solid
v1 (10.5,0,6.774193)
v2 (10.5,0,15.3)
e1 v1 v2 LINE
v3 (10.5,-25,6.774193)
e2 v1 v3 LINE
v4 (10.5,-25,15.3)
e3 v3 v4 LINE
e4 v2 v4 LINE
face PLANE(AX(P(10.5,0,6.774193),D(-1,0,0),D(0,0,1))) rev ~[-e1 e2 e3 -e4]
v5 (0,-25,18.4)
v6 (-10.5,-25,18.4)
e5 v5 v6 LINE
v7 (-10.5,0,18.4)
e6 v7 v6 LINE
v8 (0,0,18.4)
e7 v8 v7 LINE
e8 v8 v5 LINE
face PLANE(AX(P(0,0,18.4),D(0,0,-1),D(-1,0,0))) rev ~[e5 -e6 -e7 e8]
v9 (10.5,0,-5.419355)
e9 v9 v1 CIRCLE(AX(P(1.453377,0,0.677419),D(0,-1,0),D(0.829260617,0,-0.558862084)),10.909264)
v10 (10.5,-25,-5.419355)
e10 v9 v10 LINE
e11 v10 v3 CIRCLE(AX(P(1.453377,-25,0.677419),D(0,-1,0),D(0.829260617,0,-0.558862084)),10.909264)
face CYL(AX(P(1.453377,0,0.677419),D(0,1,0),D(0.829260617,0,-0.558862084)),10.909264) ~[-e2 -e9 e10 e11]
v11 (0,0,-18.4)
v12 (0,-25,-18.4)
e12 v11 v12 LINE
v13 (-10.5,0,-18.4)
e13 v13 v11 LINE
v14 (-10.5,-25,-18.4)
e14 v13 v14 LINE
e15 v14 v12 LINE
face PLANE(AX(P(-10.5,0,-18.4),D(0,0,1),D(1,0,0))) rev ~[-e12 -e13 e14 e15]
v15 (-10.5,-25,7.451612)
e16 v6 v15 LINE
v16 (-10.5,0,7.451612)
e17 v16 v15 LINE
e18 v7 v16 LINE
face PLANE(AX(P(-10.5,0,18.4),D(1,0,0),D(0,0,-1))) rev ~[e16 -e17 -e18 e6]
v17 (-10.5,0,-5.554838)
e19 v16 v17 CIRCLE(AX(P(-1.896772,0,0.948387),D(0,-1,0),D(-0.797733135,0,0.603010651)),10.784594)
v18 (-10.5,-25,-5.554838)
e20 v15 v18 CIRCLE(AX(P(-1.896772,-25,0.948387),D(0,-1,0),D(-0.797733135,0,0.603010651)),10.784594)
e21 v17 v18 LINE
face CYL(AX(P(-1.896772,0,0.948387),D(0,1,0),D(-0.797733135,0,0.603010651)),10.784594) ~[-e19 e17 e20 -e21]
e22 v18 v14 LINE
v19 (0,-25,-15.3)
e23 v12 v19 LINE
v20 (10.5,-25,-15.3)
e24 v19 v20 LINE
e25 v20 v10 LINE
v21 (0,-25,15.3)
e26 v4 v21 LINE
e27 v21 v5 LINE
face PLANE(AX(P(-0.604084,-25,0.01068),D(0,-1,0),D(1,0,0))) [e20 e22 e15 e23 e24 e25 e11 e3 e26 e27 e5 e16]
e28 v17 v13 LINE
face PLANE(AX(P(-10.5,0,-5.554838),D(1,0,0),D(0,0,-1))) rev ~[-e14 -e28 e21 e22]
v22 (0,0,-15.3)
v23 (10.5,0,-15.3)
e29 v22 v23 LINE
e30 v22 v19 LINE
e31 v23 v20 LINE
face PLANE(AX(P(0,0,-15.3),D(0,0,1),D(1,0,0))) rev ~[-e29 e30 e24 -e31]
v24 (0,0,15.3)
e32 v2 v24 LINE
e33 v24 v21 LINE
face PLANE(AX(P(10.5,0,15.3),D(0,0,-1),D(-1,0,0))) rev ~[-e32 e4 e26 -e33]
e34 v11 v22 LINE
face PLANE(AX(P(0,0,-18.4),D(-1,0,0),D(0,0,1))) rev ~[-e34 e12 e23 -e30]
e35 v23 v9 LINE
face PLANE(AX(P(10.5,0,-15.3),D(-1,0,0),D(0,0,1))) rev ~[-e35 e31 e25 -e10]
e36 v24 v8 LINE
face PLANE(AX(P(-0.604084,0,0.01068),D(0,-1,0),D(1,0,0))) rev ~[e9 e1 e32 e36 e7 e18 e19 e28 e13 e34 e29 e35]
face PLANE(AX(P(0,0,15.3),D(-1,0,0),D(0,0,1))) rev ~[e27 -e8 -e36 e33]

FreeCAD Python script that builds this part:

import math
import FreeCAD as App
import Part
import Sketcher
from FreeCAD import Vector

doc = App.newDocument("Part")
body = doc.addObject("PartDesign::Body", "Body")

# Sketch on XZ plane
sketch1 = body.newObject("Sketcher::SketchObject", "Sketch")
sketch1.AttachmentSupport = (doc.getObject("XZ_Plane"), [""])
sketch1.MapMode = "FlatFace"
sketch1.addGeometry(Part.LineSegment(Vector(-10.5, -5.6, 0), Vector(-10.5, -18.4, 0)), False)
sketch1.addGeometry(Part.LineSegment(Vector(-10.5, -18.4, 0), Vector(0, -18.4, 0)), False)
sketch1.addGeometry(Part.LineSegment(Vector(0, -18.4, 0), Vector(0, -15.3, 0)), False)
sketch1.addGeometry(Part.LineSegment(Vector(0, -15.3, 0), Vector(10.5, -15.3, 0)), False)
sketch1.addGeometry(Part.LineSegment(Vector(10.5, -15.3, 0), Vector(10.5, -5.4, 0)), False)
sketch1.addGeometry(Part.ArcOfCircle(Part.Circle(Vector(1.5, 0.7, 0), Vector(0, 0, 1), 10.9), math.radians(-34), math.radians(34)), False)
sketch1.addGeometry(Part.LineSegment(Vector(10.5, 6.8, 0), Vector(10.5, 15.3, 0)), False)
sketch1.addGeometry(Part.LineSegment(Vector(10.5, 15.3, 0), Vector(0, 15.3, 0)), False)
sketch1.addGeometry(Part.LineSegment(Vector(0, 15.3, 0), Vector(0, 18.4, 0)), False)
sketch1.addGeometry(Part.LineSegment(Vector(0, 18.4, 0), Vector(-10.5, 18.4, 0)), False)
sketch1.addGeometry(Part.LineSegment(Vector(-10.5, 18.4, 0), Vector(-10.5, 7.5, 0)), False)
sketch1.addGeometry(Part.ArcOfCircle(Part.Circle(Vector(-1.9, 0.9, 0), Vector(0, 0, 1), 10.8), math.radians(143), math.radians(217)), False)
sketch1.addConstraint(Sketcher.Constraint("Coincident", 0, 2, 1, 1))
sketch1.addConstraint(Sketcher.Constraint("Coincident", 1, 2, 2, 1))
sketch1.addConstraint(Sketcher.Constraint("Coincident", 2, 2, 3, 1))
sketch1.addConstraint(Sketcher.Constraint("Coincident", 3, 2, 4, 1))
sketch1.addConstraint(Sketcher.Constraint("Coincident", 4, 2, 5, 1))
sketch1.addConstraint(Sketcher.Constraint("Coincident", 5, 2, 6, 1))
sketch1.addConstraint(Sketcher.Constraint("Coincident", 6, 2, 7, 1))
sketch1.addConstraint(Sketcher.Constraint("Coincident", 7, 2, 8, 1))
sketch1.addConstraint(Sketcher.Constraint("Coincident", 8, 2, 9, 1))
sketch1.addConstraint(Sketcher.Constraint("Coincident", 9, 2, 10, 1))
sketch1.addConstraint(Sketcher.Constraint("Coincident", 10, 2, 11, 1))
sketch1.addConstraint(Sketcher.Constraint("Coincident", 11, 2, 0, 1))
sketch1.addConstraint(Sketcher.Constraint("Vertical", 0))
sketch1.addConstraint(Sketcher.Constraint("Horizontal", 1))
sketch1.addConstraint(Sketcher.Constraint("Vertical", 2))
sketch1.addConstraint(Sketcher.Constraint("Horizontal", 3))
sketch1.addConstraint(Sketcher.Constraint("Vertical", 4))
sketch1.addConstraint(Sketcher.Constraint("Vertical", 6))
sketch1.addConstraint(Sketcher.Constraint("Horizontal", 7))
sketch1.addConstraint(Sketcher.Constraint("Vertical", 8))
sketch1.addConstraint(Sketcher.Constraint("Horizontal", 9))
sketch1.addConstraint(Sketcher.Constraint("Vertical", 10))
sketch1.addConstraint(Sketcher.Constraint("Symmetric", 2, 2, 7, 2, -1, 1))
sketch1.addConstraint(Sketcher.Constraint("Symmetric", 1, 2, 8, 2, -1))
sketch1.addConstraint(Sketcher.Constraint("Vertical", 4, 2, 5, 2))
sketch1.addConstraint(Sketcher.Constraint("Vertical", 0, 2, 9, 2))
sketch1.addConstraint(Sketcher.Constraint("Equal", 1, 3))
sketch1.addConstraint(Sketcher.Constraint("DistanceX", 1, 1, 1, 2, 10.5))
sketch1.addConstraint(Sketcher.Constraint("DistanceY", 2, 1, 2, 2, 3.1))
sketch1.addConstraint(Sketcher.Constraint("DistanceY", 0, 2, -1, 1, 18.4))
sketch1.addConstraint(Sketcher.Constraint("Radius", 5, 10.909264))
sketch1.addConstraint(Sketcher.Constraint("Radius", 11, 10.784594))
sketch1.addConstraint(Sketcher.Constraint("DistanceY", 0, 2, 0, 1, 12.845162))
sketch1.addConstraint(Sketcher.Constraint("DistanceY", 4, 1, 4, 2, 9.880645))
sketch1.addConstraint(Sketcher.Constraint("DistanceY", 6, 1, 6, 2, 8.525807))
sketch1.addConstraint(Sketcher.Constraint("DistanceY", 10, 2, 10, 1, 10.948388))
pad1 = body.newObject("PartDesign::Pad", "Pad")
pad1.Profile = sketch1
pad1.Length = 25

doc.recompute()
